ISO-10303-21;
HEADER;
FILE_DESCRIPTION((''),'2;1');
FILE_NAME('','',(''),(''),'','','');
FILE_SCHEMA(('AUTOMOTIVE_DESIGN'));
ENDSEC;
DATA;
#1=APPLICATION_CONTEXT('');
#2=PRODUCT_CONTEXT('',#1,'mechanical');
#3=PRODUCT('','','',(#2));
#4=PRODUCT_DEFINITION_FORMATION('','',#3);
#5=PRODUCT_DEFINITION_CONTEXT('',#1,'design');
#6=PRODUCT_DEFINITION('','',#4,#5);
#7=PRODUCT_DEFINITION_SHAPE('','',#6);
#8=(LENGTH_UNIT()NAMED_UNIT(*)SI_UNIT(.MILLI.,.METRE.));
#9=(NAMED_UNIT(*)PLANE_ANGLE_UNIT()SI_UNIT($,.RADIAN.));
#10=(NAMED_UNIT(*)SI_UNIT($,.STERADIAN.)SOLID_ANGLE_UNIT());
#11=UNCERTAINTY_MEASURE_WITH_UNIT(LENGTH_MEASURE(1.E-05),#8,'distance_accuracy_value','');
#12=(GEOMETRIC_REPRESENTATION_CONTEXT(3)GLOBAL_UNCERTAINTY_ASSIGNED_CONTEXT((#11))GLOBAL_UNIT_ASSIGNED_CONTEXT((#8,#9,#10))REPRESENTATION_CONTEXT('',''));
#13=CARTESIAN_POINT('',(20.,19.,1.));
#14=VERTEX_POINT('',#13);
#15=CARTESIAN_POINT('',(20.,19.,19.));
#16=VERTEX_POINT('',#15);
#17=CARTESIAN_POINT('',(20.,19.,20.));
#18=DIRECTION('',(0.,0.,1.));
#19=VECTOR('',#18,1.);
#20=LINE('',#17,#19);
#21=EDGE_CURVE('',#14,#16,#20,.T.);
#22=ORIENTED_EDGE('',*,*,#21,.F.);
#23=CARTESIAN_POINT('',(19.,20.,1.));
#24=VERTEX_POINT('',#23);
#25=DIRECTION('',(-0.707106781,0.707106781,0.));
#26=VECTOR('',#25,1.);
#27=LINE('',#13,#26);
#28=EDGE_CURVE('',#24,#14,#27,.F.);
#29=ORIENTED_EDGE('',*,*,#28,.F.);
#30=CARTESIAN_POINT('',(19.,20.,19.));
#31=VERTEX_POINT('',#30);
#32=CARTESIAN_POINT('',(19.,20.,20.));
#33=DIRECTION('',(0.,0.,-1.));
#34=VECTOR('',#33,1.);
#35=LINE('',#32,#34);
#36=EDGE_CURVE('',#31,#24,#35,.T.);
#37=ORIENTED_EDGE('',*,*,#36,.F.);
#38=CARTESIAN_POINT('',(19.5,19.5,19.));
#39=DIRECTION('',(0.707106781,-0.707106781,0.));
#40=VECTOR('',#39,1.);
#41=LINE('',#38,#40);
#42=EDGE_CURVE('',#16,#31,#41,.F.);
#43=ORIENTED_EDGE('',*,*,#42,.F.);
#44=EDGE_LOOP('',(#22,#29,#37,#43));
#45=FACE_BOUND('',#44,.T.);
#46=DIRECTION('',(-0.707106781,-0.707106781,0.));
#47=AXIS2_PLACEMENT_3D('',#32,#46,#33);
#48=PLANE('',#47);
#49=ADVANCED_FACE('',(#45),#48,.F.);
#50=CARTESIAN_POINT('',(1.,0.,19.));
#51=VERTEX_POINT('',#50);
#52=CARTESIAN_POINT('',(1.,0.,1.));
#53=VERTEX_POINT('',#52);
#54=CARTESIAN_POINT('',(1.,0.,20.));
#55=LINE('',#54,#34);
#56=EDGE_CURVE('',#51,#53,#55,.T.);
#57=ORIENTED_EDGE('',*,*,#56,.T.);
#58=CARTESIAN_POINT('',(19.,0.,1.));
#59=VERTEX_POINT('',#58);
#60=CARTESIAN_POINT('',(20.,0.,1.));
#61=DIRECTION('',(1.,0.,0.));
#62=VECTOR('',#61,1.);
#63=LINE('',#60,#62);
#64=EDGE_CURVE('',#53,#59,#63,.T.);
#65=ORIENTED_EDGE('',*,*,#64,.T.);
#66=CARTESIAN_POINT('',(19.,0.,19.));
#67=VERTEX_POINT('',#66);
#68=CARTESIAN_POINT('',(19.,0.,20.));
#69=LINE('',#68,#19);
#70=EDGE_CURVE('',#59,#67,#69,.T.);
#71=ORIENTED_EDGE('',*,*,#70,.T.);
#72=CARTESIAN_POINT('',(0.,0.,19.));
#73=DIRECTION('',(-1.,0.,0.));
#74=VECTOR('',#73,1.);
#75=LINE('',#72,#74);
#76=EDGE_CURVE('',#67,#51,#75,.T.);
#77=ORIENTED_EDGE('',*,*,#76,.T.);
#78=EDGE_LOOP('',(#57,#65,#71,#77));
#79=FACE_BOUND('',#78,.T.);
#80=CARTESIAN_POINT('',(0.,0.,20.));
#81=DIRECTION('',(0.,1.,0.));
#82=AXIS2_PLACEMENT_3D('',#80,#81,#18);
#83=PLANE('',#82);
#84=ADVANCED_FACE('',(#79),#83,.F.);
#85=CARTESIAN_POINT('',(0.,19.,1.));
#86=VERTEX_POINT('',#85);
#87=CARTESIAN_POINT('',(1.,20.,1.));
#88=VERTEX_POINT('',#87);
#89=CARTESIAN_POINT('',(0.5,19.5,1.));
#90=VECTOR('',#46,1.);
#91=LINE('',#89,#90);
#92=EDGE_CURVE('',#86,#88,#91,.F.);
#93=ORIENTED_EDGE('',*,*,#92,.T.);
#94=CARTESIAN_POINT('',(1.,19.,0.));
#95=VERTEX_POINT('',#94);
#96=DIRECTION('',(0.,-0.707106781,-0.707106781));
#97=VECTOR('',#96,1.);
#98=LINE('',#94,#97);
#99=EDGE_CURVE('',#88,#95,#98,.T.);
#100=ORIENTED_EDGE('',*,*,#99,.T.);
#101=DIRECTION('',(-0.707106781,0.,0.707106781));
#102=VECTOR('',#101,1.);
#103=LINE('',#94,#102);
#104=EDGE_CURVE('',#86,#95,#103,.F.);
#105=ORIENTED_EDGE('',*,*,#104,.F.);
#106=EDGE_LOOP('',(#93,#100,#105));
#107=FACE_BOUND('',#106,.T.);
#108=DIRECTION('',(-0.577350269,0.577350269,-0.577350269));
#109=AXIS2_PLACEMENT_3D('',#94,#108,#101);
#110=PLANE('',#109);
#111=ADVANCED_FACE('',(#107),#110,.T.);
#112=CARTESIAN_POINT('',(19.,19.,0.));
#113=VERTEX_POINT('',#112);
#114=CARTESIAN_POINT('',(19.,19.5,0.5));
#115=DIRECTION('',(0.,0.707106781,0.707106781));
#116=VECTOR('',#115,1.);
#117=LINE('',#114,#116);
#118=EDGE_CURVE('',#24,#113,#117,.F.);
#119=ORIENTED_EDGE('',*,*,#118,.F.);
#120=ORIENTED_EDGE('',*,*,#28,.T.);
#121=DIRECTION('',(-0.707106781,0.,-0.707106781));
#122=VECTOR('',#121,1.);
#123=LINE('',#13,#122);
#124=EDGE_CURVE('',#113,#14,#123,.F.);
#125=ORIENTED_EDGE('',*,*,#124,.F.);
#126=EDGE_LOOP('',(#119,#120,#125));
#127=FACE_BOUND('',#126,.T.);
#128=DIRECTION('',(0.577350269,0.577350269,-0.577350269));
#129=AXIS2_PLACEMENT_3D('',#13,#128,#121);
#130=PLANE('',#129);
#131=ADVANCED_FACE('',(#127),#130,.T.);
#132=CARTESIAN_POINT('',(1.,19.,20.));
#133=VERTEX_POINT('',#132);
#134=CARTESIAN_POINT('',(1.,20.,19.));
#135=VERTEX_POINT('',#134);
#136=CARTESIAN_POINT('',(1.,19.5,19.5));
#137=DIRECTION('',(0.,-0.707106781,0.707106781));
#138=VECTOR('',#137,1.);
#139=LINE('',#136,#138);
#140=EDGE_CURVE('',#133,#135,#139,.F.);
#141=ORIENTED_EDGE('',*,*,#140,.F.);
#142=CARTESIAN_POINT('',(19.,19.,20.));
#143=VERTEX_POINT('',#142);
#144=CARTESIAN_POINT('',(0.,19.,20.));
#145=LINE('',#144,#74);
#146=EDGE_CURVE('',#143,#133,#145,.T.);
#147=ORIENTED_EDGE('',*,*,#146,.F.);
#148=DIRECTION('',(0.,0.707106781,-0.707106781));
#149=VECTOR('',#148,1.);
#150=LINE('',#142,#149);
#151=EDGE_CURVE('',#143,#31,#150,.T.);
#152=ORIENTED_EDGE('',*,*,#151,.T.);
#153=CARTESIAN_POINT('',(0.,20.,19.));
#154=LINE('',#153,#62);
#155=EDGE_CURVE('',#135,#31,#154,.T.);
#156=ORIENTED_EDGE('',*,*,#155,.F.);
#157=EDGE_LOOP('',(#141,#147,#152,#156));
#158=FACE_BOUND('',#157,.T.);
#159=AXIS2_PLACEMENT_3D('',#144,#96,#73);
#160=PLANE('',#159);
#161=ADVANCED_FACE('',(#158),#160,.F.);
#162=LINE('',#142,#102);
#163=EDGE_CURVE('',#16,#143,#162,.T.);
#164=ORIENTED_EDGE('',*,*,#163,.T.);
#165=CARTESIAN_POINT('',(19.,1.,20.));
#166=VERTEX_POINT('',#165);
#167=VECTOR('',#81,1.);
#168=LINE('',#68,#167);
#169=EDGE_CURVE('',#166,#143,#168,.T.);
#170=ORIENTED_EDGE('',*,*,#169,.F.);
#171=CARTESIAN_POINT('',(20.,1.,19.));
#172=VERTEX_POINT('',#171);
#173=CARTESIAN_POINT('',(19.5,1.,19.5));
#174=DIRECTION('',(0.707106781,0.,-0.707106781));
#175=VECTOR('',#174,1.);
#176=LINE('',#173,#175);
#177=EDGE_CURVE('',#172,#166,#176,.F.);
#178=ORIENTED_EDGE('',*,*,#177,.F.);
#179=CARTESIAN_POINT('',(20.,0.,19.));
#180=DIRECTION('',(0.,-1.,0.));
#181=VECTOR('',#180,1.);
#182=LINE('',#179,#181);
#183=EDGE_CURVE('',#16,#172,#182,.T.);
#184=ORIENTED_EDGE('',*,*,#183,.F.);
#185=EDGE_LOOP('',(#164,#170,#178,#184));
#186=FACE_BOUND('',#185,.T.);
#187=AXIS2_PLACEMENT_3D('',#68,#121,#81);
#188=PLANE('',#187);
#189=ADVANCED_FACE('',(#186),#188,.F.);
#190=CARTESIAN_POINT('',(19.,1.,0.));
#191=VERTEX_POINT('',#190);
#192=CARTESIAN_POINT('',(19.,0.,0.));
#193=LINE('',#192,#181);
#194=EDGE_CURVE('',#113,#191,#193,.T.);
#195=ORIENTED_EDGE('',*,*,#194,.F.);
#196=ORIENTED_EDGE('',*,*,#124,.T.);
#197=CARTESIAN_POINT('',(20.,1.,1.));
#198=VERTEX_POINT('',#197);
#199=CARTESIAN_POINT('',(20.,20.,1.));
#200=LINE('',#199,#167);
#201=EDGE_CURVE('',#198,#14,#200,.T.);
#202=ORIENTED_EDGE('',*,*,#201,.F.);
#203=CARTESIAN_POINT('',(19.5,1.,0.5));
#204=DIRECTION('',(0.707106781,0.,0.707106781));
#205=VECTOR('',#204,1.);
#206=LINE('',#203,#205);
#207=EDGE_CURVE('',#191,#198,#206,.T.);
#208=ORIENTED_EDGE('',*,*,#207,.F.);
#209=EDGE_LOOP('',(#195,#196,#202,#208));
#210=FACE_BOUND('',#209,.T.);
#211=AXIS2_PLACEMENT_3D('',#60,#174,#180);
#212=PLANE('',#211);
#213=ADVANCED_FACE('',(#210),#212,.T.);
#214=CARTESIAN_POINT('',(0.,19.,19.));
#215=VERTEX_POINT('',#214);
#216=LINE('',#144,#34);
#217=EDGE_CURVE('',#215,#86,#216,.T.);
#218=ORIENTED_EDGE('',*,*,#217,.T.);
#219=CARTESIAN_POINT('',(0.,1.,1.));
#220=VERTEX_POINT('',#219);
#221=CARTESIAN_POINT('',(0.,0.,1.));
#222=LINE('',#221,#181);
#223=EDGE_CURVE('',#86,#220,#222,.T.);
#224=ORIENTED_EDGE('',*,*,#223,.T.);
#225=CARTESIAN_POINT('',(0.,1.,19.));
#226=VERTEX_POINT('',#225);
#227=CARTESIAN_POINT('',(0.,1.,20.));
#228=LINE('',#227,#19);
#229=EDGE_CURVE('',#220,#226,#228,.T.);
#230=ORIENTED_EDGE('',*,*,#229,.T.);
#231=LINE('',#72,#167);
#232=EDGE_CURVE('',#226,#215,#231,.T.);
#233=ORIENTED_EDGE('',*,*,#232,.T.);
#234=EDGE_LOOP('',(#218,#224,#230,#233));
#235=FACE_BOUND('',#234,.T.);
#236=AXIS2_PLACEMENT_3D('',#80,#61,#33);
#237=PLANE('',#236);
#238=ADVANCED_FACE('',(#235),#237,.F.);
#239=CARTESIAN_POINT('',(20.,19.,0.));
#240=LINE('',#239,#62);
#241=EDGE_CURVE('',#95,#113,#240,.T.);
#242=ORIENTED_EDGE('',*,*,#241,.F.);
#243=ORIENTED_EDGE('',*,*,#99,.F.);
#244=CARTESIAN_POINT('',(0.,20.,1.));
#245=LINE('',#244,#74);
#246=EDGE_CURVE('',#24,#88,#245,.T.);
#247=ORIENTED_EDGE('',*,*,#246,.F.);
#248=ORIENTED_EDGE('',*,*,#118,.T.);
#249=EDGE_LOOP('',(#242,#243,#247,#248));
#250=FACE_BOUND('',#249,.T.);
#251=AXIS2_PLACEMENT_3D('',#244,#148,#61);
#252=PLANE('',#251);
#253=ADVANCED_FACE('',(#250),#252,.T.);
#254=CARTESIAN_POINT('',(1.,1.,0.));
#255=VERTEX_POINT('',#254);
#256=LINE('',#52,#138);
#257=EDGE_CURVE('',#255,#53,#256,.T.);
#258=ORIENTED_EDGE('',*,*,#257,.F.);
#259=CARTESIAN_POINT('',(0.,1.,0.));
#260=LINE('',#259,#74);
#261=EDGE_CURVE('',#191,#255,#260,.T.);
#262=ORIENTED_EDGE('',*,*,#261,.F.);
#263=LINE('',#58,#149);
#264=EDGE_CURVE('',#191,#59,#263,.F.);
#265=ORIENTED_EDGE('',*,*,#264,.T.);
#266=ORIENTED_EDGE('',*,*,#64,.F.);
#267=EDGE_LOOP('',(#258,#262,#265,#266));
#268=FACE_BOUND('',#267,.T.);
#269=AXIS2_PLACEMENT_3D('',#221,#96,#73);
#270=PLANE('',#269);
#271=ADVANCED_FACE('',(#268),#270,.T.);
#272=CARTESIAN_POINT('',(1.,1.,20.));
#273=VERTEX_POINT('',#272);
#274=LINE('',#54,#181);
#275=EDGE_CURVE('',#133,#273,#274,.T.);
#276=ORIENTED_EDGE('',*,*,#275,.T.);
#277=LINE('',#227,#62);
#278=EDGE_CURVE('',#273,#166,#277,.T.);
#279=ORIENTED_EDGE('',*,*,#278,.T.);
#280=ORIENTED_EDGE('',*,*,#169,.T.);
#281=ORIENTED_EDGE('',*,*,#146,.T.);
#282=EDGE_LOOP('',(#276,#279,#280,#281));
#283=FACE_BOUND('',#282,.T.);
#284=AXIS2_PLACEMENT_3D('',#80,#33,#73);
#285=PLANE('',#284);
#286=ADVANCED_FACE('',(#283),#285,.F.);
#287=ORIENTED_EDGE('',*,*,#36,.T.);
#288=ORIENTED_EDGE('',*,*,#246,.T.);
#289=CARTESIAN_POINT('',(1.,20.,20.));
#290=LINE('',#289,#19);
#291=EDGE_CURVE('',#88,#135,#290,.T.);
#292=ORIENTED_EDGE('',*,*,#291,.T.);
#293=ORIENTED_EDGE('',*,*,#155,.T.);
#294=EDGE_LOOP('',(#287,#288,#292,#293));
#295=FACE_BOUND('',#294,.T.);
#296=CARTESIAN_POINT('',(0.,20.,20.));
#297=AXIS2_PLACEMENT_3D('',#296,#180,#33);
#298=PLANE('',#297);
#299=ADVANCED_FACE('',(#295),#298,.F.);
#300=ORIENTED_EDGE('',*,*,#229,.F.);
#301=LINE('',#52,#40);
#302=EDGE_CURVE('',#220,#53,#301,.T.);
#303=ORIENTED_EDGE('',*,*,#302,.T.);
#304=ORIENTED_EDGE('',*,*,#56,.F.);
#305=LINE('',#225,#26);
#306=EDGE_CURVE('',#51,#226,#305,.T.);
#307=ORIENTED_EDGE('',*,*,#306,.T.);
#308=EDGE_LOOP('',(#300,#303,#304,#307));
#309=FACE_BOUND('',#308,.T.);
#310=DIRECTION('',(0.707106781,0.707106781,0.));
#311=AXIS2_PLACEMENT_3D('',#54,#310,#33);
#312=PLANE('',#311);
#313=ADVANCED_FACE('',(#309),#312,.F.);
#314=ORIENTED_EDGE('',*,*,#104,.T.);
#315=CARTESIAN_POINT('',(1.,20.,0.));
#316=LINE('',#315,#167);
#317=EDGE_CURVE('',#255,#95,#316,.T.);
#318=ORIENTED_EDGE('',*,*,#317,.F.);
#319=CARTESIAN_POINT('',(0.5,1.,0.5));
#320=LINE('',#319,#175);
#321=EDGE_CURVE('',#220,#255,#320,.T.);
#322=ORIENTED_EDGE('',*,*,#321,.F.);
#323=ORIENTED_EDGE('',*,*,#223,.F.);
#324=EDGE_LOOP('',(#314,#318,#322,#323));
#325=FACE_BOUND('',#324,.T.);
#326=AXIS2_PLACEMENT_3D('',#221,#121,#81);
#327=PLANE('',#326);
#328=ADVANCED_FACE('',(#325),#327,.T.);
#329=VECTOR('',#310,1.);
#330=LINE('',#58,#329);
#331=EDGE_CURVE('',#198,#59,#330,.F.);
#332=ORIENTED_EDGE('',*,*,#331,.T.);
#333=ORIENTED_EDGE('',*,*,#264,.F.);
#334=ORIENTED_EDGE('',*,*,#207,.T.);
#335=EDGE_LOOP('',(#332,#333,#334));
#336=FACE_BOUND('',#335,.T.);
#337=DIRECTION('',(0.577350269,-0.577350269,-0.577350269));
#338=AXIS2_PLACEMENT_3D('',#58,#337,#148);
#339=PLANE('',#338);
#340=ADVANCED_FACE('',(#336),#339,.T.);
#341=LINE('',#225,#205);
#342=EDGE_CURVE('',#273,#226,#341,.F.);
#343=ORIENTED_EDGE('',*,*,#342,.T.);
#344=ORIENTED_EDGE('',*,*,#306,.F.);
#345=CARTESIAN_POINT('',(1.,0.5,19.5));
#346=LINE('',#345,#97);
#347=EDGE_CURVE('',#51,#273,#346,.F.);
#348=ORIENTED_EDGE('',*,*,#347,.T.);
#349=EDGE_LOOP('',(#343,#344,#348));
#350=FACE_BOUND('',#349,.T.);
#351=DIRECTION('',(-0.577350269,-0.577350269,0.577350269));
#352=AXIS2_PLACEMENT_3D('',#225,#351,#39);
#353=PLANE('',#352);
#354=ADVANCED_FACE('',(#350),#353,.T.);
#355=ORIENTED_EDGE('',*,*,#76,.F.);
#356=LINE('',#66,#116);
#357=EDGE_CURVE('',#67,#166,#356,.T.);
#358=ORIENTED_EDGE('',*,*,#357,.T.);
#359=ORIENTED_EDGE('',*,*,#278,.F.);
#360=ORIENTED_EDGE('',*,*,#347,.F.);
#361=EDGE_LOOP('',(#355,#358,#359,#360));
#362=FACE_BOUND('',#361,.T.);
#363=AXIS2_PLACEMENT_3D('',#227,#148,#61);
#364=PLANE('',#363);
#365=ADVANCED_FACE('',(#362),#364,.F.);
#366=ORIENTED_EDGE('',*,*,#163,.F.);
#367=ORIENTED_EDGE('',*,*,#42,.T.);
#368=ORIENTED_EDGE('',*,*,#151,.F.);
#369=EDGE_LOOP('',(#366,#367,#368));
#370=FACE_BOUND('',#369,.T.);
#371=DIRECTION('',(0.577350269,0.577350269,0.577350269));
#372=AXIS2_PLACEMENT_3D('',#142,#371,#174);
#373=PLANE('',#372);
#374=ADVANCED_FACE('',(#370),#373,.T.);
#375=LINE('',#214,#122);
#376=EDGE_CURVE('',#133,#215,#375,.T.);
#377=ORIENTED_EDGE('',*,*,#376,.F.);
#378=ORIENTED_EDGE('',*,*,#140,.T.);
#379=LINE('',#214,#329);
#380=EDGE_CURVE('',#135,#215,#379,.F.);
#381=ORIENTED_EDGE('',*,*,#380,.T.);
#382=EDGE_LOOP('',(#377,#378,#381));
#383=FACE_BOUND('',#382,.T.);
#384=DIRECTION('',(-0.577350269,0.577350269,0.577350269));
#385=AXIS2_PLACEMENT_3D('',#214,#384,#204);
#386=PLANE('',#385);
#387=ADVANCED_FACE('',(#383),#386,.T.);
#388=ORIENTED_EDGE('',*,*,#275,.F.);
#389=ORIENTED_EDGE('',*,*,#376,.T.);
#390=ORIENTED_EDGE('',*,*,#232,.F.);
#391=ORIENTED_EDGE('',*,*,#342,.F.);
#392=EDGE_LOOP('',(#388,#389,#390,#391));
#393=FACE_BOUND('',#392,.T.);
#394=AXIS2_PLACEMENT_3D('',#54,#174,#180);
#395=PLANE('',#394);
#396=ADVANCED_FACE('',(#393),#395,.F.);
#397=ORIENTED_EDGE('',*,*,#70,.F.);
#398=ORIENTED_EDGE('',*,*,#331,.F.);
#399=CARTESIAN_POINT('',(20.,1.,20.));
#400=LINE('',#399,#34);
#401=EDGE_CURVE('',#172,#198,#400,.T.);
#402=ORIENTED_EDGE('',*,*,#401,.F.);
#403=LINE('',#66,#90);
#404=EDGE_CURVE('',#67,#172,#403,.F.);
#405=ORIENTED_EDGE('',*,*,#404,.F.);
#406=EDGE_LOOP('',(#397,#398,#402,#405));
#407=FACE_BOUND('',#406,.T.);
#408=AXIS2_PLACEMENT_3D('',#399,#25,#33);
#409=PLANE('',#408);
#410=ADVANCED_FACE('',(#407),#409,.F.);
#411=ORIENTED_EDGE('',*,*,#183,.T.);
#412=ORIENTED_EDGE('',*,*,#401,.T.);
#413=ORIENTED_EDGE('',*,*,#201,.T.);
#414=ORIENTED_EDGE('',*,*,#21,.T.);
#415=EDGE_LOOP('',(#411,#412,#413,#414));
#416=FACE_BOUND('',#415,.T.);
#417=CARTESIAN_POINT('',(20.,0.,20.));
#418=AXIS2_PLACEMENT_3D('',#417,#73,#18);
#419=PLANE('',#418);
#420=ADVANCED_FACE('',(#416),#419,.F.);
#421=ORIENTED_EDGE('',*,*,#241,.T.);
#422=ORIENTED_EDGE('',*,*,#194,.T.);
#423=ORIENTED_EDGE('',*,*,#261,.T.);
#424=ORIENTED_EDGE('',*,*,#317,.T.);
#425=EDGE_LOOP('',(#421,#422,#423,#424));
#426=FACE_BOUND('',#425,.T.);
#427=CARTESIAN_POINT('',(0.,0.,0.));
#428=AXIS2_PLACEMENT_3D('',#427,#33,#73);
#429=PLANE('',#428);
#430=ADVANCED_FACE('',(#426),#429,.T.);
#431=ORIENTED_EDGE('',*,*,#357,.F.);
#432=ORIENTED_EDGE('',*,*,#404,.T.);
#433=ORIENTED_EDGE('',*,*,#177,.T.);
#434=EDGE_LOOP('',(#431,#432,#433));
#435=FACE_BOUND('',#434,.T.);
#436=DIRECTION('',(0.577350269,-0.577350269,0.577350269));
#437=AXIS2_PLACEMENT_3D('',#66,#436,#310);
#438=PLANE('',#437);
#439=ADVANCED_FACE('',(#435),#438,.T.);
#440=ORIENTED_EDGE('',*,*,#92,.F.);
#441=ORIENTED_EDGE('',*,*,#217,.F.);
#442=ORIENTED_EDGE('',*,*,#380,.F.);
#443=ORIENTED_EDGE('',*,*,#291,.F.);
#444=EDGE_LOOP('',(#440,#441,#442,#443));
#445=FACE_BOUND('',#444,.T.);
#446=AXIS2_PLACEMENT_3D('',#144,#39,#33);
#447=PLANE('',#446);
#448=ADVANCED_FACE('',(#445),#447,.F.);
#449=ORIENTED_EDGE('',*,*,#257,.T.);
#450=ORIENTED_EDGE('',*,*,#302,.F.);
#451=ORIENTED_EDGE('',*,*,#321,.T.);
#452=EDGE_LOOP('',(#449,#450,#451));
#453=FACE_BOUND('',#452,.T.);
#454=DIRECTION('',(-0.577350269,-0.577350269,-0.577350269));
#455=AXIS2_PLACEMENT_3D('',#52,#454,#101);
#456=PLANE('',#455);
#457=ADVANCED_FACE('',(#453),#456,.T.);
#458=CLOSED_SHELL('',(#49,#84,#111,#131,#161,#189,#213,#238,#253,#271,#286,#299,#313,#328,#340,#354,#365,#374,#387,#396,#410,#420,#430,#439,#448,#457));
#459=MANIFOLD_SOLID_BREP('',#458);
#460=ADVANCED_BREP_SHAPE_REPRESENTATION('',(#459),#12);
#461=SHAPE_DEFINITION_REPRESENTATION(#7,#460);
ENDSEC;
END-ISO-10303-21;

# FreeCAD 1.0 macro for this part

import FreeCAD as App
import Part
import Sketcher

V = App.Vector
Q = App.Units.Quantity

doc = App.newDocument("Part")
body = doc.addObject("PartDesign::Body", "Body")

sketch1 = body.newObject("Sketcher::SketchObject", "Sketch")
sketch1.AttachmentSupport = (doc.getObject("XY_Plane"), [""])
sketch1.MapMode = "FlatFace"
sketch1.addGeometry(Part.LineSegment(V(0, 20, 0), V(0, 0, 0)), False)
sketch1.addGeometry(Part.LineSegment(V(0, 0, 0), V(20, 0, 0)), False)
sketch1.addGeometry(Part.LineSegment(V(20, 0, 0), V(20, 20, 0)), False)
sketch1.addGeometry(Part.LineSegment(V(20, 20, 0), V(0, 20, 0)), False)
sketch1.addConstraint(Sketcher.Constraint("Coincident", 0, 2, 1, 1))
sketch1.addConstraint(Sketcher.Constraint("Coincident", 1, 2, 2, 1))
sketch1.addConstraint(Sketcher.Constraint("Coincident", 2, 2, 3, 1))
sketch1.addConstraint(Sketcher.Constraint("Coincident", 3, 2, 0, 1))
sketch1.addConstraint(Sketcher.Constraint("Vertical", 0))
sketch1.addConstraint(Sketcher.Constraint("Horizontal", 1))
sketch1.addConstraint(Sketcher.Constraint("Vertical", 2))
sketch1.addConstraint(Sketcher.Constraint("Horizontal", 3))
sketch1.addConstraint(Sketcher.Constraint("Coincident", 0, 2, -1, 1))
sketch1.addConstraint(Sketcher.Constraint("Equal", 3, 0))
sketch1.addConstraint(Sketcher.Constraint("DistanceX", 1, 1, 1, 2, Q("20 mm")))
pad1 = body.newObject("PartDesign::Pad", "Pad")
pad1.Profile = sketch1
pad1.Length = 20
doc.recompute()

chamfer = body.newObject("PartDesign::Chamfer", "Chamfer")
chamfer.Base = (pad1, ["Edge1"])
chamfer.UseAllEdges = True
chamfer.Size = 1

doc.recompute()
